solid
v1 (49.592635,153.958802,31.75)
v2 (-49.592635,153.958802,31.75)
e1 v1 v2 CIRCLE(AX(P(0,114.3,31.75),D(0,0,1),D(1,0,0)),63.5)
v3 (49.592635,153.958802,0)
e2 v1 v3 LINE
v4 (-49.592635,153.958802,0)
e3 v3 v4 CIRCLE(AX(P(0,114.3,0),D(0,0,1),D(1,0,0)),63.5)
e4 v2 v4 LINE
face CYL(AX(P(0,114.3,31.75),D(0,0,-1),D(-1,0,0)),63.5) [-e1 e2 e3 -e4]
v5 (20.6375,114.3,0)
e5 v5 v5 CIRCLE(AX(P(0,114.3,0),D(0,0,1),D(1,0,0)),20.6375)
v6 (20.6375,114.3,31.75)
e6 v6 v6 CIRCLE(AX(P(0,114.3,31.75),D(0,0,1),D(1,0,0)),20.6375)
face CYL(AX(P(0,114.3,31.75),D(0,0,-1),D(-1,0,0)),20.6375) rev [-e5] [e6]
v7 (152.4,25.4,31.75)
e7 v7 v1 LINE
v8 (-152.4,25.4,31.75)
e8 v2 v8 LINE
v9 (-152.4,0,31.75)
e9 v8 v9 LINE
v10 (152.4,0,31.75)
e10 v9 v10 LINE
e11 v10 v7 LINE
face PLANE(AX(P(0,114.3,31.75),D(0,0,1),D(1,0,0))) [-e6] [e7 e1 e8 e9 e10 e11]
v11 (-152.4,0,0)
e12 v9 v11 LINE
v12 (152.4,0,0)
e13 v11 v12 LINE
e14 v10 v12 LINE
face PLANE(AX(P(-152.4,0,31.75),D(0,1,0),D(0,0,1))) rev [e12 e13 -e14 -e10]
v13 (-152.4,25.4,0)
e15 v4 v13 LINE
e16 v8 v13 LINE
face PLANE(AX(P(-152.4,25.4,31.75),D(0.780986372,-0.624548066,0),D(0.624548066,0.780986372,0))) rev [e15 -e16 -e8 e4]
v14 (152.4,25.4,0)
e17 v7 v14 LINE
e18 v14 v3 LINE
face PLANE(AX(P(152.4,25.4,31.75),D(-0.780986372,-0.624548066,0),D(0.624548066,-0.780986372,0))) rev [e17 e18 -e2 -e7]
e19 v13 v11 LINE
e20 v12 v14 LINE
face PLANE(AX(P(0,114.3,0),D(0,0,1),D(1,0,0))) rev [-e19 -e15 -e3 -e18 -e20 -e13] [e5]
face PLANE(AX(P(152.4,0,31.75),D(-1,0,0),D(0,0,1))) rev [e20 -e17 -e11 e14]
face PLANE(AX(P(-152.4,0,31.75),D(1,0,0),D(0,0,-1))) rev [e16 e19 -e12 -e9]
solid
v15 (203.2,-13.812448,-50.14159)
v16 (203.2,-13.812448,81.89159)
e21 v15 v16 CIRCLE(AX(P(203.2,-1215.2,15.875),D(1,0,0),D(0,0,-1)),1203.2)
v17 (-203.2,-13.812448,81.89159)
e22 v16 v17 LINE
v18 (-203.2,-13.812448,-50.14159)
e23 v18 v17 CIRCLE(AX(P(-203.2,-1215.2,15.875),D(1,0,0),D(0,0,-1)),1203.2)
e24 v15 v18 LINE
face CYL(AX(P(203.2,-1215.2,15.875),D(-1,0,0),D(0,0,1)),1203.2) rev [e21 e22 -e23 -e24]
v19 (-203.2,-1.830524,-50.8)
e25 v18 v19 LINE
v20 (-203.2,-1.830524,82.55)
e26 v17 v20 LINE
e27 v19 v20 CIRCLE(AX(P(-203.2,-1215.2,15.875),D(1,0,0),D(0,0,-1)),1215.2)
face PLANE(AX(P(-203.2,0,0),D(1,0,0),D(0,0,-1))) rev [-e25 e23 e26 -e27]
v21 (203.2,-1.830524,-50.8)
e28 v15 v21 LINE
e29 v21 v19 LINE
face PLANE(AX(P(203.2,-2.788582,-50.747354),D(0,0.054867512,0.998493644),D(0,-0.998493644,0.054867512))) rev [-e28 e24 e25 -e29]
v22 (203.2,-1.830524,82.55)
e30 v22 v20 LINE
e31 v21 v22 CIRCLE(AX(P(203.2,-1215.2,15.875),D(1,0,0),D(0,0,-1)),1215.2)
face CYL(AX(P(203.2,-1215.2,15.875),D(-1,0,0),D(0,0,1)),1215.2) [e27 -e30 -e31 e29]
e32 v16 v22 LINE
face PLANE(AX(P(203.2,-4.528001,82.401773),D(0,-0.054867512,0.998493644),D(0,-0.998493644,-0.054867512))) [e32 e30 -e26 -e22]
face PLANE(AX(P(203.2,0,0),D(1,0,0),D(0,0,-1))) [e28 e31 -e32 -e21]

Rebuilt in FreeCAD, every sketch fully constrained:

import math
import FreeCAD as App
import Part
import Sketcher

V = App.Vector
Q = App.Units.Quantity

doc = App.newDocument("Part")
body = doc.addObject("PartDesign::Body", "Body")

# Sketch on XY plane
sketch1 = body.newObject("Sketcher::SketchObject", "Sketch")
sketch1.AttachmentSupport = (doc.getObject("XY_Plane"), [""])
sketch1.MapMode = "FlatFace"
sketch1.addGeometry(Part.LineSegment(V(-152, 0, 0), V(152, 0, 0)), False)
sketch1.addGeometry(Part.LineSegment(V(152, 0, 0), V(152, 25, 0)), False)
sketch1.addGeometry(Part.LineSegment(V(152, 25, 0), V(50, 154, 0)), False)
sketch1.addGeometry(Part.ArcOfCircle(Part.Circle(V(0, 114, 0), V(0, 0, 1), 64), math.radians(39), math.radians(141)), False)
sketch1.addGeometry(Part.LineSegment(V(-50, 154, 0), V(-152, 25, 0)), False)
sketch1.addGeometry(Part.LineSegment(V(-152, 25, 0), V(-152, 0, 0)), False)
sketch1.addGeometry(Part.Circle(V(0, 114, 0), V(0, 0, 1), 21), False)
sketch1.addConstraint(Sketcher.Constraint("Coincident", 0, 2, 1, 1))
sketch1.addConstraint(Sketcher.Constraint("Coincident", 1, 2, 2, 1))
sketch1.addConstraint(Sketcher.Constraint("Tangent", 2, 2, 3, 1))
sketch1.addConstraint(Sketcher.Constraint("Tangent", 3, 2, 4, 1))
sketch1.addConstraint(Sketcher.Constraint("Coincident", 4, 2, 5, 1))
sketch1.addConstraint(Sketcher.Constraint("Coincident", 5, 2, 0, 1))
sketch1.addConstraint(Sketcher.Constraint("Horizontal", 0))
sketch1.addConstraint(Sketcher.Constraint("Vertical", 1))
sketch1.addConstraint(Sketcher.Constraint("Vertical", 5))
sketch1.addConstraint(Sketcher.Constraint("Coincident", 6, 3, 3, 3))
sketch1.addConstraint(Sketcher.Constraint("Symmetric", 0, 2, 5, 2, -1, 1))
sketch1.addConstraint(Sketcher.Constraint("Symmetric", 2, 2, 3, 2, -2))
sketch1.addConstraint(Sketcher.Constraint("Radius", 3, Q("2.5 in")))
sketch1.addConstraint(Sketcher.Constraint("DistanceX", 0, 1, 0, 2, Q("12 in")))
sketch1.addConstraint(Sketcher.Constraint("DistanceY", 1, 1, 1, 2, Q("1 in")))
sketch1.addConstraint(Sketcher.Constraint("Diameter", 6, Q("1.625 in")))
sketch1.addConstraint(Sketcher.Constraint("DistanceY", -1, 1, 3, 3, Q("4.5 in")))
pad1 = body.newObject("PartDesign::Pad", "Pad")
pad1.Profile = sketch1
pad1.Length = Q("1.25 in")
body2 = doc.addObject("PartDesign::Body", "Body001")

# Sketch on YZ plane
sketch2 = body2.newObject("Sketcher::SketchObject", "Sketch001")
sketch2.AttachmentSupport = (doc.getObject("YZ_Plane001"), [""])
sketch2.MapMode = "FlatFace"
sketch2.addGeometry(Part.LineSegment(V(-2, 83, 0), V(-14, 82, 0)), False)
sketch2.addGeometry(Part.ArcOfCircle(Part.Circle(V(-1215, 16, 0), V(0, 0, 1), 1203), math.radians(-3.15), math.radians(3.15)), False)
sketch2.addGeometry(Part.LineSegment(V(-14, -50, 0), V(-2, -51, 0)), False)
sketch2.addGeometry(Part.ArcOfCircle(Part.Circle(V(-1215, 16, 0), V(0, 0, 1), 1215), math.radians(-3.15), math.radians(3.15)), False)
sketch2.addConstraint(Sketcher.Constraint("Coincident", 0, 2, 1, 2))
sketch2.addConstraint(Sketcher.Constraint("Coincident", 1, 1, 2, 1))
sketch2.addConstraint(Sketcher.Constraint("Coincident", 2, 2, 3, 1))
sketch2.addConstraint(Sketcher.Constraint("Coincident", 3, 2, 0, 1))
sketch2.addConstraint(Sketcher.Constraint("Coincident", 3, 3, 1, 3))
sketch2.addConstraint(Sketcher.Constraint("DistanceY", 2, 2, -1, 1, Q("2 in")))
sketch2.addConstraint(Sketcher.Constraint("Radius", 1, 1203.2))
sketch2.addConstraint(Sketcher.Constraint("Radius", 3, 1215.2))
sketch2.addConstraint(Sketcher.Constraint("DistanceY", -1, 1, 1, 3, Q("0.625 in")))
sketch2.addConstraint(Sketcher.Constraint("DistanceX", 1, 3, -1, 1, 1215.2))
sketch2.addConstraint(Sketcher.Constraint("DistanceX", 0, 2, -1, 1, 13.812448))
sketch2.addConstraint(Sketcher.Constraint("Angle", 0, Q("-176.854744 deg")))
sketch2.addConstraint(Sketcher.Constraint("Angle", 2, Q("-3.145256 deg")))
pad2 = body2.newObject("PartDesign::Pad", "Pad001")
pad2.Profile = sketch2
pad2.Length = Q("16 in")
pad2.Midplane = True

doc.recompute()
